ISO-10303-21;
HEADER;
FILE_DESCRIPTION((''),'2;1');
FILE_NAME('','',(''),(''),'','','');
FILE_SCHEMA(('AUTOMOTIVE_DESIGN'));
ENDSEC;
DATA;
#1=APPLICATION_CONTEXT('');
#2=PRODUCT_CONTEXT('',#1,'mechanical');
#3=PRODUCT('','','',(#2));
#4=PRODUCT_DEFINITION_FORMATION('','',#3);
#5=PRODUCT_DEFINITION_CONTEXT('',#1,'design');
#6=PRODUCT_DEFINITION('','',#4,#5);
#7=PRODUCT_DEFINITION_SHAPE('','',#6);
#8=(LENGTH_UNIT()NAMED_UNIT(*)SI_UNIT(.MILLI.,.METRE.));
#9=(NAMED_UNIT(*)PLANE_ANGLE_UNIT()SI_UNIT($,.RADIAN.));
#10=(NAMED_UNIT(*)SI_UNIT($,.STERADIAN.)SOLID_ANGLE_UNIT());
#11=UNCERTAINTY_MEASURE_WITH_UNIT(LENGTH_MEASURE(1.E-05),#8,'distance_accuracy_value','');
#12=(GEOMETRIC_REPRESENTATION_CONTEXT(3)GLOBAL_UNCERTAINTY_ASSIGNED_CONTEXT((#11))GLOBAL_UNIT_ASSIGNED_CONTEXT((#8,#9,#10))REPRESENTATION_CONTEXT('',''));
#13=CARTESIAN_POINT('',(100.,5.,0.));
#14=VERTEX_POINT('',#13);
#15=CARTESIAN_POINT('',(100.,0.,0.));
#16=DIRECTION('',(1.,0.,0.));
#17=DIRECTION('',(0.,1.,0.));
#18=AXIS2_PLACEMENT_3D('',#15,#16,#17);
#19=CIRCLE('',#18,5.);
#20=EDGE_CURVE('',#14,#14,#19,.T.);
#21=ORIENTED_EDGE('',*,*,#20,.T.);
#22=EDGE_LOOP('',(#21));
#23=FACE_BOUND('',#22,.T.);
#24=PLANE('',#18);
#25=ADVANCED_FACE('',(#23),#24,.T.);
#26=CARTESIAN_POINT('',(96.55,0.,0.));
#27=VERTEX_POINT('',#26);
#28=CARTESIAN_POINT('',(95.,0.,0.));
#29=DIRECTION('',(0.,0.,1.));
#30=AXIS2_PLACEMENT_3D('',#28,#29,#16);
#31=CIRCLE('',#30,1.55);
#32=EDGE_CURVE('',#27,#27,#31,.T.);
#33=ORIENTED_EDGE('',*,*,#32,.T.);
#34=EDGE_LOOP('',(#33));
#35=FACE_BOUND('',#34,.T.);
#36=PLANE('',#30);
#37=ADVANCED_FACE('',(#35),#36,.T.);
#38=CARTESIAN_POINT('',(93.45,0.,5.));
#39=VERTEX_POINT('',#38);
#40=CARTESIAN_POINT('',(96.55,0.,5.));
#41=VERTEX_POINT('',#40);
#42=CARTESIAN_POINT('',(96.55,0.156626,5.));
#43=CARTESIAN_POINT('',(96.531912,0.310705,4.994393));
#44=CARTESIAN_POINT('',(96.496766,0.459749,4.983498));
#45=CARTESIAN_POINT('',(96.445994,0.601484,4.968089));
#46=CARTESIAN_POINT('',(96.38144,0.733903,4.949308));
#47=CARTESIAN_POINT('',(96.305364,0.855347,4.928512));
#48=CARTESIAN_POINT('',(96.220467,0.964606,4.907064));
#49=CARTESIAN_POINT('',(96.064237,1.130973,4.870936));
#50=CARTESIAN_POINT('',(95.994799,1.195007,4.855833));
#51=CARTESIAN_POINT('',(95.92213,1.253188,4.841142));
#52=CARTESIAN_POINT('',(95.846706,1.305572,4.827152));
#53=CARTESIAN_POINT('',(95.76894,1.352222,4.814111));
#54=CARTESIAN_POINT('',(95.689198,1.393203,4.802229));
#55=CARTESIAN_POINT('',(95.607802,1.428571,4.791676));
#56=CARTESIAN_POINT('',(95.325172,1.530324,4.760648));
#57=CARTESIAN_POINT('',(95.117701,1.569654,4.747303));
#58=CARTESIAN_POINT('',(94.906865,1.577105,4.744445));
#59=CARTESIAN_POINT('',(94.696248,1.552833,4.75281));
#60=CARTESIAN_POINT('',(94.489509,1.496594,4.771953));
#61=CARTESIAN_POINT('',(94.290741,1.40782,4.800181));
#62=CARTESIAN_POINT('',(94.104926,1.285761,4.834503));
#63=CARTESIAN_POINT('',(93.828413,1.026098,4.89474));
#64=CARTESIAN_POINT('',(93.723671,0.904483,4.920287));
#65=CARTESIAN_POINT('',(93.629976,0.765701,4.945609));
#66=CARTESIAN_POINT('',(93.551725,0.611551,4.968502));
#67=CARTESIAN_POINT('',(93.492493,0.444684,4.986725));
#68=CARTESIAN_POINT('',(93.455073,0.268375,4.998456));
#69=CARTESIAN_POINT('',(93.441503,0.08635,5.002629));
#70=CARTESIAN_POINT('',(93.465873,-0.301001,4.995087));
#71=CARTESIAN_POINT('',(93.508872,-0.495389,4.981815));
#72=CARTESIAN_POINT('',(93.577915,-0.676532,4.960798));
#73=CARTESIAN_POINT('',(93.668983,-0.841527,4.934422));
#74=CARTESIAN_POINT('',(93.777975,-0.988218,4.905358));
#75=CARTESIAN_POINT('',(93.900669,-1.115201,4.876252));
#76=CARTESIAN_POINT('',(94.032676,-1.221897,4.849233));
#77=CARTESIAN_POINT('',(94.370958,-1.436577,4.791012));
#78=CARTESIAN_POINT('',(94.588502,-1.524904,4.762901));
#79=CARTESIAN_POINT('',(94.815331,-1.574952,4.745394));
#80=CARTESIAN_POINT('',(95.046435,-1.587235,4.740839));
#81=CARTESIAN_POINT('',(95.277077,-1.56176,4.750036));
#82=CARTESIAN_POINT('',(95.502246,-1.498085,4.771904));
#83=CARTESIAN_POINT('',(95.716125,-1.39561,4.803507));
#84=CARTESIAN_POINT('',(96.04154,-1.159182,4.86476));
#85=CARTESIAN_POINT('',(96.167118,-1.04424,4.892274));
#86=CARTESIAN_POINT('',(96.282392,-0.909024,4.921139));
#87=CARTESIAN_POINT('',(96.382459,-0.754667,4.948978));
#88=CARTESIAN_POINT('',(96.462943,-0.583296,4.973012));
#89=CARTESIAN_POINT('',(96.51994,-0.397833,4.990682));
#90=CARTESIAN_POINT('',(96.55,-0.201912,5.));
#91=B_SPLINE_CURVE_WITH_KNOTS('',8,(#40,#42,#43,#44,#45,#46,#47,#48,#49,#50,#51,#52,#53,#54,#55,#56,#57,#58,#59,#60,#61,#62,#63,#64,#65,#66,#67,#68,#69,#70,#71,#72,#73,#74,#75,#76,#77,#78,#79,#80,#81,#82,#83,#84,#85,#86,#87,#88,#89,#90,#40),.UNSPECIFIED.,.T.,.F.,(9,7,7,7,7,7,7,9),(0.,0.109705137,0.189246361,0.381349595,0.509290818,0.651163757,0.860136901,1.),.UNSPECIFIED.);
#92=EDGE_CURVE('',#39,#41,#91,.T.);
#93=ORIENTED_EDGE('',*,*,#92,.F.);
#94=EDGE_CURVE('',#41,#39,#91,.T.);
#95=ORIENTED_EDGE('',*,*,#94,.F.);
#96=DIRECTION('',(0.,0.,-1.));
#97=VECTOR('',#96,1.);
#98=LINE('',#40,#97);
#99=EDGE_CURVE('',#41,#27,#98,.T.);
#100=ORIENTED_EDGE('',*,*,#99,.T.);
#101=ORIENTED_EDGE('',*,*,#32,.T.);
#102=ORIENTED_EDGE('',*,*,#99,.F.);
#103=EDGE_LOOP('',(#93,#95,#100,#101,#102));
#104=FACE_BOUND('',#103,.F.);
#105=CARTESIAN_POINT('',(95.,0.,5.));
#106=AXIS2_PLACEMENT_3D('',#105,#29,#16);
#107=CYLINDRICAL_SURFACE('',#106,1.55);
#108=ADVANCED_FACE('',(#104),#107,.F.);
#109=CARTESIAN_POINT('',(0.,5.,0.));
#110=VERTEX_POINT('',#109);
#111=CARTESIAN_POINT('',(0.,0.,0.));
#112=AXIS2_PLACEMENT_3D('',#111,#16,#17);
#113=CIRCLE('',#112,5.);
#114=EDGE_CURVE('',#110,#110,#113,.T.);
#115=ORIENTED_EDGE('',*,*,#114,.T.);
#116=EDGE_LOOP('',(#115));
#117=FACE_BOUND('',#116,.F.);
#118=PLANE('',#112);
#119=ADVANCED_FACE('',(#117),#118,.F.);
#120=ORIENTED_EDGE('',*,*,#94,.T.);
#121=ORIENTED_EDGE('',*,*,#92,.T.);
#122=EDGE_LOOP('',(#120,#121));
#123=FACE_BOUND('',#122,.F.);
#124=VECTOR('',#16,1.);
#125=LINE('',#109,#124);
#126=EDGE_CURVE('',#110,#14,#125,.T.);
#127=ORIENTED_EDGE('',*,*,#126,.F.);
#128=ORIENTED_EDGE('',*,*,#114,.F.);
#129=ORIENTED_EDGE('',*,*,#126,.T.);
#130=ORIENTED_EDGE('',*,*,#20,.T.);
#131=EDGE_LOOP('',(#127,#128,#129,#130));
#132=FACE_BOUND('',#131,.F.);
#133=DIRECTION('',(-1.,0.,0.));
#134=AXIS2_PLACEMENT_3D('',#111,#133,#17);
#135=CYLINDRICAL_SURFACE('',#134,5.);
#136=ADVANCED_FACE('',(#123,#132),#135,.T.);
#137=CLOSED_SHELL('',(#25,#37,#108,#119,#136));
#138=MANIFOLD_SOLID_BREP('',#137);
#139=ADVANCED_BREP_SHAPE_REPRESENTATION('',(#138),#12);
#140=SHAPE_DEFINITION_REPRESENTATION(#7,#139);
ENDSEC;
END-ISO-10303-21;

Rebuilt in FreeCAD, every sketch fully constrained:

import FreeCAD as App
import Part
import Sketcher

V = App.Vector
Q = App.Units.Quantity

doc = App.newDocument("Part")
body = doc.addObject("PartDesign::Body", "Body")

# Sketch on YZ plane
sketch1 = body.newObject("Sketcher::SketchObject", "Sketch")
sketch1.AttachmentSupport = (doc.getObject("YZ_Plane"), [""])
sketch1.MapMode = "FlatFace"
sketch1.addGeometry(Part.Circle(V(0, 0, 0), V(0, 0, 1), 5), False)
sketch1.addConstraint([
    Sketcher.Constraint("Coincident", 0, 3, -1, 1),
    Sketcher.Constraint("Diameter", 0, Q("10 mm")),
])
pad1 = body.newObject("PartDesign::Pad", "Pad")
pad1.Profile = sketch1
pad1.Length = 100

# Sketch on XY plane
sketch2 = body.newObject("Sketcher::SketchObject", "Sketch001")
sketch2.AttachmentSupport = (doc.getObject("XY_Plane"), [""])
sketch2.MapMode = "FlatFace"
sketch2.AttachmentOffset = App.Placement(V(0, 0, 5), App.Rotation())
sketch2.addGeometry(Part.Circle(V(95, 0, 0), V(0, 0, 1), 1.6), False)
sketch2.addConstraint([
    Sketcher.Constraint("PointOnObject", 0, 3, -1),
    Sketcher.Constraint("Diameter", 0, Q("3.1 mm")),
    Sketcher.Constraint("DistanceX", -1, 1, 0, 3, Q("95 mm")),
])
pocket1 = body.newObject("PartDesign::Pocket", "Pocket")
pocket1.Profile = sketch2
pocket1.Length = 5

doc.recompute()
